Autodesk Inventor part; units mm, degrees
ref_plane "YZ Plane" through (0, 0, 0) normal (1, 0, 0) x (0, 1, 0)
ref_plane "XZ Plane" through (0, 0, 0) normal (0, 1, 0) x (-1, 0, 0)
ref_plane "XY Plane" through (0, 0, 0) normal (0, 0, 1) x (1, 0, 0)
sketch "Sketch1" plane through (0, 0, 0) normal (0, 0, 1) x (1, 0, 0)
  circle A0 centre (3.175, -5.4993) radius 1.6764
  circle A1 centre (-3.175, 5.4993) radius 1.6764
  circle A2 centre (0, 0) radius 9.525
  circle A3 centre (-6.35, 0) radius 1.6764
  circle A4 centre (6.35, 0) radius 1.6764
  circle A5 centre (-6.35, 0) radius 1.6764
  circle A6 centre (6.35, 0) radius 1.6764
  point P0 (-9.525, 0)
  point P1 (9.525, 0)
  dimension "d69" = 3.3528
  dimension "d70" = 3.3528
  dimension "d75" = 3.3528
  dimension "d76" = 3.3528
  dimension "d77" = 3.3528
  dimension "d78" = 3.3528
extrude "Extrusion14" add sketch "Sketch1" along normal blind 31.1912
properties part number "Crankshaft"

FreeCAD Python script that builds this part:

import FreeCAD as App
import Part
import Sketcher

V = App.Vector
Q = App.Units.Quantity

doc = App.newDocument("Part")
params = doc.addObject("Spreadsheet::Sheet", "Params")
for row, (alias, value) in enumerate([
    ("sketch1_diameter", "0.132 in"),
    ("sketch1_diameter2", "0.75 in"),
    ("pad1_length", "1.228 in"),
], start=1):
    params.set(f"A{row}", alias)
    params.set(f"B{row}", "=" + value)
    params.setAlias(f"B{row}", alias)

body = doc.addObject("PartDesign::Body", "Body")

sketch1 = doc.addObject("Sketcher::SketchObject", "Sketch")
body.addObject(sketch1)
sketch1.AttachmentSupport = (doc.XY_Plane, [""])
sketch1.MapMode = "FlatFace"
sketch1.addGeometry([
    Part.Circle(V(0, 0, 0), V(0, 0, 1), 9.525),
    Part.Circle(V(3.175, -5.4993, 0), V(0, 0, 1), 1.6764),
    Part.Circle(V(-6.35, 0, 0), V(0, 0, 1), 1.6764),
    Part.Circle(V(-3.175, 5.4993, 0), V(0, 0, 1), 1.6764),
    Part.Circle(V(6.35, 0, 0), V(0, 0, 1), 1.6764),
], False)
sketch1.addConstraint([
    Sketcher.Constraint("Coincident", 0, 3, -1, 1),
    Sketcher.Constraint("Equal", 1, 2),
    Sketcher.Constraint("Equal", 2, 3),
    Sketcher.Constraint("Equal", 3, 4),
    Sketcher.Constraint("Symmetric", 1, 3, 3, 3, -1, 1),
    Sketcher.Constraint("Symmetric", 2, 3, 4, 3, -1, 1),
    Sketcher.Constraint("PointOnObject", 2, 3, -1),
    Sketcher.Constraint("Diameter", 1, Q("0.132 in")),
    Sketcher.Constraint("Diameter", 0, Q("0.75 in")),
    Sketcher.Constraint("DistanceX", 2, 3, 4, 3, Q("0.5 in")),
    Sketcher.Constraint("DistanceX", 3, 3, 1, 3, Q("0.25 in")),
    Sketcher.Constraint("DistanceY", 1, 3, -1, 1, Q("0.2165 in")),
])
sketch1.setExpression("Constraints[7]", "Params.sketch1_diameter")
sketch1.setExpression("Constraints[8]", "Params.sketch1_diameter2")
pad1 = doc.addObject("PartDesign::Pad", "Pad")
body.addObject(pad1)
pad1.Profile = sketch1
pad1.setExpression("Length", "Params.pad1_length")

doc.recompute()
